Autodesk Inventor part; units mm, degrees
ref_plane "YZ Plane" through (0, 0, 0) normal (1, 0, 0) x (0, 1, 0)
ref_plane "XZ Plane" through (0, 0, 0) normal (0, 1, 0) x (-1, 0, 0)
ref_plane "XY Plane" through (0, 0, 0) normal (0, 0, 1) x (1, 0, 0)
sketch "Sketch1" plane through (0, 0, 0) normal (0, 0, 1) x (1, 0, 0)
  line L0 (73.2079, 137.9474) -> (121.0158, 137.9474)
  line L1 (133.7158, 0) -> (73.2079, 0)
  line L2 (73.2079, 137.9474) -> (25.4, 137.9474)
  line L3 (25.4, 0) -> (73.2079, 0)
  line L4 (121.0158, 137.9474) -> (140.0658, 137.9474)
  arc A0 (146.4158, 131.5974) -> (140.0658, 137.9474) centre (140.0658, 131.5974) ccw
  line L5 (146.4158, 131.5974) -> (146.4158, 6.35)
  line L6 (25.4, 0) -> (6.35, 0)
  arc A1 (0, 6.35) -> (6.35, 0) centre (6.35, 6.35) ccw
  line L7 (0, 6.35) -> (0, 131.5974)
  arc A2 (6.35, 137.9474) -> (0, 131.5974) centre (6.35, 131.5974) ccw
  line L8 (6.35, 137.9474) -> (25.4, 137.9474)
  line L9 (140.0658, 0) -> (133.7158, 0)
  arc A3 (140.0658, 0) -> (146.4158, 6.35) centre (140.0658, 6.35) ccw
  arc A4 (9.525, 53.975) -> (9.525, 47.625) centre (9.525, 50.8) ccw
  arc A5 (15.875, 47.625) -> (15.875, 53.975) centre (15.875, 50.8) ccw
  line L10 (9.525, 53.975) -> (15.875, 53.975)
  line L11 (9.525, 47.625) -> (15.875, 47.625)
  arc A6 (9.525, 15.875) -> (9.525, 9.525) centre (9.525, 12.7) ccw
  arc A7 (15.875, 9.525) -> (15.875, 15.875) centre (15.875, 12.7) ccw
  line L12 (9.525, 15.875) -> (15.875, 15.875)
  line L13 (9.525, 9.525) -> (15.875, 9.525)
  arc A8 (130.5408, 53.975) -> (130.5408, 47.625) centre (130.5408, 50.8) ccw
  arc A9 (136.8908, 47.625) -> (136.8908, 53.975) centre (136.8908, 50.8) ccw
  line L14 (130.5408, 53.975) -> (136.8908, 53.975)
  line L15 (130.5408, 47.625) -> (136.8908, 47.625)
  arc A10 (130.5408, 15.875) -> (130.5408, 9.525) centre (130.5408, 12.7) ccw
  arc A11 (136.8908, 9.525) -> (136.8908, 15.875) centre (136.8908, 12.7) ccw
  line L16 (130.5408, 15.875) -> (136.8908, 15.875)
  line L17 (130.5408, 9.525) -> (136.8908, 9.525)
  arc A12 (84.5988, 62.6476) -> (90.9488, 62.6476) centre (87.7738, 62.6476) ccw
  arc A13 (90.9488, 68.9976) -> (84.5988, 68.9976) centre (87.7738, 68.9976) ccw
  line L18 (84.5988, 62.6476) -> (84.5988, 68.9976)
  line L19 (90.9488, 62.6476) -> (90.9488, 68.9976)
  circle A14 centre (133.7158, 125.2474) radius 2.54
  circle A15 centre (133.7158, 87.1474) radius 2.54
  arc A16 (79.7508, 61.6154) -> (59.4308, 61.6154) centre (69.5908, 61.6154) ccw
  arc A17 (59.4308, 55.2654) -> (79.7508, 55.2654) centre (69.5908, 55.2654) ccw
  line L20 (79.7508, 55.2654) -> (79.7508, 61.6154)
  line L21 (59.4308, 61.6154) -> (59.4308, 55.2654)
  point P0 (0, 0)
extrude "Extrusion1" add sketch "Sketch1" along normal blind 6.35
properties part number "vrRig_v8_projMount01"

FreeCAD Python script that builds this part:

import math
import FreeCAD as App
import Part
import Sketcher

V = App.Vector
Q = App.Units.Quantity

doc = App.newDocument("Part")
params = doc.addObject("Spreadsheet::Sheet", "Params")
for row, (alias, value) in enumerate([
    ("sketch1_diameter", "0.2 in"),
    ("sketch1_radius", "0.4 in"),
    ("sketch1_radius2", "0.25 in"),
    ("sketch1_radius3", "0.125 in"),
    ("sketch1_width", "0.25 in"),
    ("pad1_length", "0.25 in"),
], start=1):
    params.set(f"A{row}", alias)
    params.set(f"B{row}", "=" + value)
    params.setAlias(f"B{row}", alias)

body = doc.addObject("PartDesign::Body", "Body")

# Sketch on XY plane
sketch1 = body.newObject("Sketcher::SketchObject", "Sketch")
sketch1.AttachmentSupport = (doc.getObject("XY_Plane"), [""])
sketch1.MapMode = "FlatFace"
sketch1.addGeometry(Part.LineSegment(V(140.1, 137.9, 0), V(6.3, 137.9, 0)), False)
sketch1.addGeometry(Part.ArcOfCircle(Part.Circle(V(6.3, 131.6, 0), V(0, 0, 1), 6.3), math.radians(90), math.radians(180)), False)
sketch1.addGeometry(Part.LineSegment(V(0, 131.6, 0), V(0, 6.3, 0)), False)
sketch1.addGeometry(Part.ArcOfCircle(Part.Circle(V(6.3, 6.3, 0), V(0, 0, 1), 6.3), math.radians(180), math.radians(270)), False)
sketch1.addGeometry(Part.LineSegment(V(6.3, 0, 0), V(140.1, 0, 0)), False)
sketch1.addGeometry(Part.ArcOfCircle(Part.Circle(V(140.1, 6.3, 0), V(0, 0, 1), 6.3), math.radians(-90), math.radians(0)), False)
sketch1.addGeometry(Part.LineSegment(V(146.4, 6.3, 0), V(146.4, 131.6, 0)), False)
sketch1.addGeometry(Part.ArcOfCircle(Part.Circle(V(140.1, 131.6, 0), V(0, 0, 1), 6.3), math.radians(0), math.radians(90)), False)
sketch1.addGeometry(Part.ArcOfCircle(Part.Circle(V(9.5, 12.7, 0), V(0, 0, 1), 3.2), math.radians(90), math.radians(270)), False)
sketch1.addGeometry(Part.LineSegment(V(9.5, 15.9, 0), V(15.9, 15.9, 0)), False)
sketch1.addGeometry(Part.ArcOfCircle(Part.Circle(V(15.9, 12.7, 0), V(0, 0, 1), 3.2), math.radians(-90), math.radians(90)), False)
sketch1.addGeometry(Part.LineSegment(V(15.9, 9.5, 0), V(9.5, 9.5, 0)), False)
sketch1.addGeometry(Part.ArcOfCircle(Part.Circle(V(9.5, 50.8, 0), V(0, 0, 1), 3.2), math.radians(90), math.radians(270)), False)
sketch1.addGeometry(Part.LineSegment(V(9.5, 54, 0), V(15.9, 54, 0)), False)
sketch1.addGeometry(Part.ArcOfCircle(Part.Circle(V(15.9, 50.8, 0), V(0, 0, 1), 3.2), math.radians(-90), math.radians(90)), False)
sketch1.addGeometry(Part.LineSegment(V(15.9, 47.6, 0), V(9.5, 47.6, 0)), False)
sketch1.addGeometry(Part.ArcOfCircle(Part.Circle(V(69.6, 61.6, 0), V(0, 0, 1), 10.2), math.radians(0), math.radians(180)), False)
sketch1.addGeometry(Part.LineSegment(V(79.8, 61.6, 0), V(79.8, 55.3, 0)), False)
sketch1.addGeometry(Part.ArcOfCircle(Part.Circle(V(69.6, 55.3, 0), V(0, 0, 1), 10.2), math.radians(180), math.radians(360)), False)
sketch1.addGeometry(Part.LineSegment(V(59.4, 55.3, 0), V(59.4, 61.6, 0)), False)
sketch1.addGeometry(Part.ArcOfCircle(Part.Circle(V(130.5, 12.7, 0), V(0, 0, 1), 3.2), math.radians(90), math.radians(270)), False)
sketch1.addGeometry(Part.LineSegment(V(130.5, 15.9, 0), V(136.9, 15.9, 0)), False)
sketch1.addGeometry(Part.ArcOfCircle(Part.Circle(V(136.9, 12.7, 0), V(0, 0, 1), 3.2), math.radians(-90), math.radians(90)), False)
sketch1.addGeometry(Part.LineSegment(V(136.9, 9.5, 0), V(130.5, 9.5, 0)), False)
sketch1.addGeometry(Part.ArcOfCircle(Part.Circle(V(87.8, 62.6, 0), V(0, 0, 1), 3.2), math.radians(180), math.radians(360)), False)
sketch1.addGeometry(Part.LineSegment(V(84.6, 62.6, 0), V(84.6, 69, 0)), False)
sketch1.addGeometry(Part.ArcOfCircle(Part.Circle(V(87.8, 69, 0), V(0, 0, 1), 3.2), math.radians(0), math.radians(180)), False)
sketch1.addGeometry(Part.LineSegment(V(90.9, 69, 0), V(90.9, 62.6, 0)), False)
sketch1.addGeometry(Part.ArcOfCircle(Part.Circle(V(130.5, 50.8, 0), V(0, 0, 1), 3.2), math.radians(90), math.radians(270)), False)
sketch1.addGeometry(Part.LineSegment(V(130.5, 54, 0), V(136.9, 54, 0)), False)
sketch1.addGeometry(Part.ArcOfCircle(Part.Circle(V(136.9, 50.8, 0), V(0, 0, 1), 3.2), math.radians(-90), math.radians(90)), False)
sketch1.addGeometry(Part.LineSegment(V(136.9, 47.6, 0), V(130.5, 47.6, 0)), False)
sketch1.addGeometry(Part.Circle(V(133.7, 87.1, 0), V(0, 0, 1), 2.5), False)
sketch1.addGeometry(Part.Circle(V(133.7, 125.2, 0), V(0, 0, 1), 2.5), False)
sketch1.addConstraint(Sketcher.Constraint("Tangent", 0, 2, 1, 1))
sketch1.addConstraint(Sketcher.Constraint("Tangent", 1, 2, 2, 1))
sketch1.addConstraint(Sketcher.Constraint("Tangent", 2, 2, 3, 1))
sketch1.addConstraint(Sketcher.Constraint("Tangent", 3, 2, 4, 1))
sketch1.addConstraint(Sketcher.Constraint("Tangent", 4, 2, 5, 1))
sketch1.addConstraint(Sketcher.Constraint("Tangent", 5, 2, 6, 1))
sketch1.addConstraint(Sketcher.Constraint("Tangent", 6, 2, 7, 1))
sketch1.addConstraint(Sketcher.Constraint("Tangent", 7, 2, 0, 1))
sketch1.addConstraint(Sketcher.Constraint("Tangent", 8, 1, 9, 1))
sketch1.addConstraint(Sketcher.Constraint("Tangent", 9, 2, 10, 2))
sketch1.addConstraint(Sketcher.Constraint("Tangent", 10, 1, 11, 1))
sketch1.addConstraint(Sketcher.Constraint("Tangent", 11, 2, 8, 2))
sketch1.addConstraint(Sketcher.Constraint("Tangent", 12, 1, 13, 1))
sketch1.addConstraint(Sketcher.Constraint("Tangent", 13, 2, 14, 2))
sketch1.addConstraint(Sketcher.Constraint("Tangent", 14, 1, 15, 1))
sketch1.addConstraint(Sketcher.Constraint("Tangent", 15, 2, 12, 2))
sketch1.addConstraint(Sketcher.Constraint("Tangent", 16, 1, 17, 1))
sketch1.addConstraint(Sketcher.Constraint("Tangent", 17, 2, 18, 2))
sketch1.addConstraint(Sketcher.Constraint("Tangent", 18, 1, 19, 1))
sketch1.addConstraint(Sketcher.Constraint("Tangent", 19, 2, 16, 2))
sketch1.addConstraint(Sketcher.Constraint("Tangent", 20, 1, 21, 1))
sketch1.addConstraint(Sketcher.Constraint("Tangent", 21, 2, 22, 2))
sketch1.addConstraint(Sketcher.Constraint("Tangent", 22, 1, 23, 1))
sketch1.addConstraint(Sketcher.Constraint("Tangent", 23, 2, 20, 2))
sketch1.addConstraint(Sketcher.Constraint("Tangent", 24, 1, 25, 1))
sketch1.addConstraint(Sketcher.Constraint("Tangent", 25, 2, 26, 2))
sketch1.addConstraint(Sketcher.Constraint("Tangent", 26, 1, 27, 1))
sketch1.addConstraint(Sketcher.Constraint("Tangent", 27, 2, 24, 2))
sketch1.addConstraint(Sketcher.Constraint("Tangent", 28, 1, 29, 1))
sketch1.addConstraint(Sketcher.Constraint("Tangent", 29, 2, 30, 2))
sketch1.addConstraint(Sketcher.Constraint("Tangent", 30, 1, 31, 1))
sketch1.addConstraint(Sketcher.Constraint("Tangent", 31, 2, 28, 2))
sketch1.addConstraint(Sketcher.Constraint("Horizontal", 0))
sketch1.addConstraint(Sketcher.Constraint("Vertical", 2))
sketch1.addConstraint(Sketcher.Constraint("Horizontal", 4))
sketch1.addConstraint(Sketcher.Constraint("Vertical", 6))
sketch1.addConstraint(Sketcher.Constraint("Horizontal", 9))
sketch1.addConstraint(Sketcher.Constraint("Horizontal", 11))
sketch1.addConstraint(Sketcher.Constraint("Horizontal", 13))
sketch1.addConstraint(Sketcher.Constraint("Horizontal", 15))
sketch1.addConstraint(Sketcher.Constraint("Vertical", 17))
sketch1.addConstraint(Sketcher.Constraint("Vertical", 19))
sketch1.addConstraint(Sketcher.Constraint("Horizontal", 21))
sketch1.addConstraint(Sketcher.Constraint("Horizontal", 23))
sketch1.addConstraint(Sketcher.Constraint("Vertical", 25))
sketch1.addConstraint(Sketcher.Constraint("Vertical", 27))
sketch1.addConstraint(Sketcher.Constraint("Horizontal", 29))
sketch1.addConstraint(Sketcher.Constraint("Horizontal", 31))
sketch1.addConstraint(Sketcher.Constraint("Equal", 1, 3))
sketch1.addConstraint(Sketcher.Constraint("Equal", 3, 5))
sketch1.addConstraint(Sketcher.Constraint("Equal", 5, 7))
sketch1.addConstraint(Sketcher.Constraint("Equal", 10, 12))
sketch1.addConstraint(Sketcher.Constraint("Equal", 14, 20))
sketch1.addConstraint(Sketcher.Constraint("Equal", 22, 24))
sketch1.addConstraint(Sketcher.Constraint("Equal", 26, 28))
sketch1.addConstraint(Sketcher.Constraint("Equal", 32, 33))
sketch1.addConstraint(Sketcher.Constraint("PointOnObject", 1, 2, -2))
sketch1.addConstraint(Sketcher.Constraint("PointOnObject", 3, 2, -1))
sketch1.addConstraint(Sketcher.Constraint("Horizontal", 10, 3, 20, 3))
sketch1.addConstraint(Sketcher.Constraint("Horizontal", 14, 3, 28, 3))
sketch1.addConstraint(Sketcher.Constraint("Vertical", 8, 3, 12, 3))
sketch1.addConstraint(Sketcher.Constraint("Vertical", 10, 3, 14, 3))
sketch1.addConstraint(Sketcher.Constraint("Vertical", 20, 3, 28, 3))
sketch1.addConstraint(Sketcher.Constraint("Vertical", 22, 3, 30, 3))
sketch1.addConstraint(Sketcher.Constraint("Vertical", 32, 3, 33, 3))
sketch1.addConstraint(Sketcher.Constraint("Equal", 15, 21))
sketch1.addConstraint(Sketcher.Constraint("Equal", 31, 17))
sketch1.addConstraint(Sketcher.Constraint("Equal", 19, 25))
sketch1.addConstraint(Sketcher.Constraint("Diameter", 32, Q("0.2 in")))
sketch1.addConstraint(Sketcher.Constraint("Radius", 16, Q("0.4 in")))
sketch1.addConstraint(Sketcher.Constraint("Radius", 1, Q("0.25 in")))
sketch1.addConstraint(Sketcher.Constraint("DistanceY", -1, 1, 12, 3, Q("2 in")))
sketch1.addConstraint(Sketcher.Constraint("Radius", 8, Q("0.125 in")))
sketch1.addConstraint(Sketcher.Constraint("DistanceY", 32, 3, 7, 2, Q("2 in")))
sketch1.addConstraint(Sketcher.Constraint("DistanceX", 9, 1, 9, 2, Q("0.25 in")))
sketch1.addConstraint(Sketcher.Constraint("DistanceY", -1, 1, 8, 3, Q("0.5 in")))
sketch1.addConstraint(Sketcher.Constraint("DistanceY", 32, 3, 33, 3, Q("1.5 in")))
sketch1.addConstraint(Sketcher.Constraint("DistanceX", 33, 3, 6, 2, Q("0.5 in")))
sketch1.addConstraint(Sketcher.Constraint("DistanceY", 2, 2, 2, 1, Q("4.931 in")))
sketch1.addConstraint(Sketcher.Constraint("DistanceX", 0, 2, 0, 1, Q("5.2644 in")))
sketch1.addConstraint(Sketcher.Constraint("DistanceX", -1, 1, 8, 3, Q("0.375 in")))
sketch1.addConstraint(Sketcher.Constraint("DistanceX", 20, 3, 5, 3, Q("0.375 in")))
sketch1.addConstraint(Sketcher.Constraint("DistanceX", -1, 1, 16, 3, Q("2.7398 in")))
sketch1.addConstraint(Sketcher.Constraint("DistanceY", -1, 1, 16, 3, Q("2.4258 in")))
sketch1.addConstraint(Sketcher.Constraint("DistanceX", -1, 1, 24, 3, 87.7738))
sketch1.addConstraint(Sketcher.Constraint("DistanceY", -1, 1, 24, 3, 62.6476))
sketch1.setExpression("Constraints[68]", "Params.sketch1_diameter")
sketch1.setExpression("Constraints[69]", "Params.sketch1_radius")
sketch1.setExpression("Constraints[70]", "Params.sketch1_radius2")
sketch1.setExpression("Constraints[72]", "Params.sketch1_radius3")
sketch1.setExpression("Constraints[74]", "Params.sketch1_width")
pad1 = body.newObject("PartDesign::Pad", "Pad")
pad1.Profile = sketch1
pad1.setExpression("Length", "Params.pad1_length")

doc.recompute()
